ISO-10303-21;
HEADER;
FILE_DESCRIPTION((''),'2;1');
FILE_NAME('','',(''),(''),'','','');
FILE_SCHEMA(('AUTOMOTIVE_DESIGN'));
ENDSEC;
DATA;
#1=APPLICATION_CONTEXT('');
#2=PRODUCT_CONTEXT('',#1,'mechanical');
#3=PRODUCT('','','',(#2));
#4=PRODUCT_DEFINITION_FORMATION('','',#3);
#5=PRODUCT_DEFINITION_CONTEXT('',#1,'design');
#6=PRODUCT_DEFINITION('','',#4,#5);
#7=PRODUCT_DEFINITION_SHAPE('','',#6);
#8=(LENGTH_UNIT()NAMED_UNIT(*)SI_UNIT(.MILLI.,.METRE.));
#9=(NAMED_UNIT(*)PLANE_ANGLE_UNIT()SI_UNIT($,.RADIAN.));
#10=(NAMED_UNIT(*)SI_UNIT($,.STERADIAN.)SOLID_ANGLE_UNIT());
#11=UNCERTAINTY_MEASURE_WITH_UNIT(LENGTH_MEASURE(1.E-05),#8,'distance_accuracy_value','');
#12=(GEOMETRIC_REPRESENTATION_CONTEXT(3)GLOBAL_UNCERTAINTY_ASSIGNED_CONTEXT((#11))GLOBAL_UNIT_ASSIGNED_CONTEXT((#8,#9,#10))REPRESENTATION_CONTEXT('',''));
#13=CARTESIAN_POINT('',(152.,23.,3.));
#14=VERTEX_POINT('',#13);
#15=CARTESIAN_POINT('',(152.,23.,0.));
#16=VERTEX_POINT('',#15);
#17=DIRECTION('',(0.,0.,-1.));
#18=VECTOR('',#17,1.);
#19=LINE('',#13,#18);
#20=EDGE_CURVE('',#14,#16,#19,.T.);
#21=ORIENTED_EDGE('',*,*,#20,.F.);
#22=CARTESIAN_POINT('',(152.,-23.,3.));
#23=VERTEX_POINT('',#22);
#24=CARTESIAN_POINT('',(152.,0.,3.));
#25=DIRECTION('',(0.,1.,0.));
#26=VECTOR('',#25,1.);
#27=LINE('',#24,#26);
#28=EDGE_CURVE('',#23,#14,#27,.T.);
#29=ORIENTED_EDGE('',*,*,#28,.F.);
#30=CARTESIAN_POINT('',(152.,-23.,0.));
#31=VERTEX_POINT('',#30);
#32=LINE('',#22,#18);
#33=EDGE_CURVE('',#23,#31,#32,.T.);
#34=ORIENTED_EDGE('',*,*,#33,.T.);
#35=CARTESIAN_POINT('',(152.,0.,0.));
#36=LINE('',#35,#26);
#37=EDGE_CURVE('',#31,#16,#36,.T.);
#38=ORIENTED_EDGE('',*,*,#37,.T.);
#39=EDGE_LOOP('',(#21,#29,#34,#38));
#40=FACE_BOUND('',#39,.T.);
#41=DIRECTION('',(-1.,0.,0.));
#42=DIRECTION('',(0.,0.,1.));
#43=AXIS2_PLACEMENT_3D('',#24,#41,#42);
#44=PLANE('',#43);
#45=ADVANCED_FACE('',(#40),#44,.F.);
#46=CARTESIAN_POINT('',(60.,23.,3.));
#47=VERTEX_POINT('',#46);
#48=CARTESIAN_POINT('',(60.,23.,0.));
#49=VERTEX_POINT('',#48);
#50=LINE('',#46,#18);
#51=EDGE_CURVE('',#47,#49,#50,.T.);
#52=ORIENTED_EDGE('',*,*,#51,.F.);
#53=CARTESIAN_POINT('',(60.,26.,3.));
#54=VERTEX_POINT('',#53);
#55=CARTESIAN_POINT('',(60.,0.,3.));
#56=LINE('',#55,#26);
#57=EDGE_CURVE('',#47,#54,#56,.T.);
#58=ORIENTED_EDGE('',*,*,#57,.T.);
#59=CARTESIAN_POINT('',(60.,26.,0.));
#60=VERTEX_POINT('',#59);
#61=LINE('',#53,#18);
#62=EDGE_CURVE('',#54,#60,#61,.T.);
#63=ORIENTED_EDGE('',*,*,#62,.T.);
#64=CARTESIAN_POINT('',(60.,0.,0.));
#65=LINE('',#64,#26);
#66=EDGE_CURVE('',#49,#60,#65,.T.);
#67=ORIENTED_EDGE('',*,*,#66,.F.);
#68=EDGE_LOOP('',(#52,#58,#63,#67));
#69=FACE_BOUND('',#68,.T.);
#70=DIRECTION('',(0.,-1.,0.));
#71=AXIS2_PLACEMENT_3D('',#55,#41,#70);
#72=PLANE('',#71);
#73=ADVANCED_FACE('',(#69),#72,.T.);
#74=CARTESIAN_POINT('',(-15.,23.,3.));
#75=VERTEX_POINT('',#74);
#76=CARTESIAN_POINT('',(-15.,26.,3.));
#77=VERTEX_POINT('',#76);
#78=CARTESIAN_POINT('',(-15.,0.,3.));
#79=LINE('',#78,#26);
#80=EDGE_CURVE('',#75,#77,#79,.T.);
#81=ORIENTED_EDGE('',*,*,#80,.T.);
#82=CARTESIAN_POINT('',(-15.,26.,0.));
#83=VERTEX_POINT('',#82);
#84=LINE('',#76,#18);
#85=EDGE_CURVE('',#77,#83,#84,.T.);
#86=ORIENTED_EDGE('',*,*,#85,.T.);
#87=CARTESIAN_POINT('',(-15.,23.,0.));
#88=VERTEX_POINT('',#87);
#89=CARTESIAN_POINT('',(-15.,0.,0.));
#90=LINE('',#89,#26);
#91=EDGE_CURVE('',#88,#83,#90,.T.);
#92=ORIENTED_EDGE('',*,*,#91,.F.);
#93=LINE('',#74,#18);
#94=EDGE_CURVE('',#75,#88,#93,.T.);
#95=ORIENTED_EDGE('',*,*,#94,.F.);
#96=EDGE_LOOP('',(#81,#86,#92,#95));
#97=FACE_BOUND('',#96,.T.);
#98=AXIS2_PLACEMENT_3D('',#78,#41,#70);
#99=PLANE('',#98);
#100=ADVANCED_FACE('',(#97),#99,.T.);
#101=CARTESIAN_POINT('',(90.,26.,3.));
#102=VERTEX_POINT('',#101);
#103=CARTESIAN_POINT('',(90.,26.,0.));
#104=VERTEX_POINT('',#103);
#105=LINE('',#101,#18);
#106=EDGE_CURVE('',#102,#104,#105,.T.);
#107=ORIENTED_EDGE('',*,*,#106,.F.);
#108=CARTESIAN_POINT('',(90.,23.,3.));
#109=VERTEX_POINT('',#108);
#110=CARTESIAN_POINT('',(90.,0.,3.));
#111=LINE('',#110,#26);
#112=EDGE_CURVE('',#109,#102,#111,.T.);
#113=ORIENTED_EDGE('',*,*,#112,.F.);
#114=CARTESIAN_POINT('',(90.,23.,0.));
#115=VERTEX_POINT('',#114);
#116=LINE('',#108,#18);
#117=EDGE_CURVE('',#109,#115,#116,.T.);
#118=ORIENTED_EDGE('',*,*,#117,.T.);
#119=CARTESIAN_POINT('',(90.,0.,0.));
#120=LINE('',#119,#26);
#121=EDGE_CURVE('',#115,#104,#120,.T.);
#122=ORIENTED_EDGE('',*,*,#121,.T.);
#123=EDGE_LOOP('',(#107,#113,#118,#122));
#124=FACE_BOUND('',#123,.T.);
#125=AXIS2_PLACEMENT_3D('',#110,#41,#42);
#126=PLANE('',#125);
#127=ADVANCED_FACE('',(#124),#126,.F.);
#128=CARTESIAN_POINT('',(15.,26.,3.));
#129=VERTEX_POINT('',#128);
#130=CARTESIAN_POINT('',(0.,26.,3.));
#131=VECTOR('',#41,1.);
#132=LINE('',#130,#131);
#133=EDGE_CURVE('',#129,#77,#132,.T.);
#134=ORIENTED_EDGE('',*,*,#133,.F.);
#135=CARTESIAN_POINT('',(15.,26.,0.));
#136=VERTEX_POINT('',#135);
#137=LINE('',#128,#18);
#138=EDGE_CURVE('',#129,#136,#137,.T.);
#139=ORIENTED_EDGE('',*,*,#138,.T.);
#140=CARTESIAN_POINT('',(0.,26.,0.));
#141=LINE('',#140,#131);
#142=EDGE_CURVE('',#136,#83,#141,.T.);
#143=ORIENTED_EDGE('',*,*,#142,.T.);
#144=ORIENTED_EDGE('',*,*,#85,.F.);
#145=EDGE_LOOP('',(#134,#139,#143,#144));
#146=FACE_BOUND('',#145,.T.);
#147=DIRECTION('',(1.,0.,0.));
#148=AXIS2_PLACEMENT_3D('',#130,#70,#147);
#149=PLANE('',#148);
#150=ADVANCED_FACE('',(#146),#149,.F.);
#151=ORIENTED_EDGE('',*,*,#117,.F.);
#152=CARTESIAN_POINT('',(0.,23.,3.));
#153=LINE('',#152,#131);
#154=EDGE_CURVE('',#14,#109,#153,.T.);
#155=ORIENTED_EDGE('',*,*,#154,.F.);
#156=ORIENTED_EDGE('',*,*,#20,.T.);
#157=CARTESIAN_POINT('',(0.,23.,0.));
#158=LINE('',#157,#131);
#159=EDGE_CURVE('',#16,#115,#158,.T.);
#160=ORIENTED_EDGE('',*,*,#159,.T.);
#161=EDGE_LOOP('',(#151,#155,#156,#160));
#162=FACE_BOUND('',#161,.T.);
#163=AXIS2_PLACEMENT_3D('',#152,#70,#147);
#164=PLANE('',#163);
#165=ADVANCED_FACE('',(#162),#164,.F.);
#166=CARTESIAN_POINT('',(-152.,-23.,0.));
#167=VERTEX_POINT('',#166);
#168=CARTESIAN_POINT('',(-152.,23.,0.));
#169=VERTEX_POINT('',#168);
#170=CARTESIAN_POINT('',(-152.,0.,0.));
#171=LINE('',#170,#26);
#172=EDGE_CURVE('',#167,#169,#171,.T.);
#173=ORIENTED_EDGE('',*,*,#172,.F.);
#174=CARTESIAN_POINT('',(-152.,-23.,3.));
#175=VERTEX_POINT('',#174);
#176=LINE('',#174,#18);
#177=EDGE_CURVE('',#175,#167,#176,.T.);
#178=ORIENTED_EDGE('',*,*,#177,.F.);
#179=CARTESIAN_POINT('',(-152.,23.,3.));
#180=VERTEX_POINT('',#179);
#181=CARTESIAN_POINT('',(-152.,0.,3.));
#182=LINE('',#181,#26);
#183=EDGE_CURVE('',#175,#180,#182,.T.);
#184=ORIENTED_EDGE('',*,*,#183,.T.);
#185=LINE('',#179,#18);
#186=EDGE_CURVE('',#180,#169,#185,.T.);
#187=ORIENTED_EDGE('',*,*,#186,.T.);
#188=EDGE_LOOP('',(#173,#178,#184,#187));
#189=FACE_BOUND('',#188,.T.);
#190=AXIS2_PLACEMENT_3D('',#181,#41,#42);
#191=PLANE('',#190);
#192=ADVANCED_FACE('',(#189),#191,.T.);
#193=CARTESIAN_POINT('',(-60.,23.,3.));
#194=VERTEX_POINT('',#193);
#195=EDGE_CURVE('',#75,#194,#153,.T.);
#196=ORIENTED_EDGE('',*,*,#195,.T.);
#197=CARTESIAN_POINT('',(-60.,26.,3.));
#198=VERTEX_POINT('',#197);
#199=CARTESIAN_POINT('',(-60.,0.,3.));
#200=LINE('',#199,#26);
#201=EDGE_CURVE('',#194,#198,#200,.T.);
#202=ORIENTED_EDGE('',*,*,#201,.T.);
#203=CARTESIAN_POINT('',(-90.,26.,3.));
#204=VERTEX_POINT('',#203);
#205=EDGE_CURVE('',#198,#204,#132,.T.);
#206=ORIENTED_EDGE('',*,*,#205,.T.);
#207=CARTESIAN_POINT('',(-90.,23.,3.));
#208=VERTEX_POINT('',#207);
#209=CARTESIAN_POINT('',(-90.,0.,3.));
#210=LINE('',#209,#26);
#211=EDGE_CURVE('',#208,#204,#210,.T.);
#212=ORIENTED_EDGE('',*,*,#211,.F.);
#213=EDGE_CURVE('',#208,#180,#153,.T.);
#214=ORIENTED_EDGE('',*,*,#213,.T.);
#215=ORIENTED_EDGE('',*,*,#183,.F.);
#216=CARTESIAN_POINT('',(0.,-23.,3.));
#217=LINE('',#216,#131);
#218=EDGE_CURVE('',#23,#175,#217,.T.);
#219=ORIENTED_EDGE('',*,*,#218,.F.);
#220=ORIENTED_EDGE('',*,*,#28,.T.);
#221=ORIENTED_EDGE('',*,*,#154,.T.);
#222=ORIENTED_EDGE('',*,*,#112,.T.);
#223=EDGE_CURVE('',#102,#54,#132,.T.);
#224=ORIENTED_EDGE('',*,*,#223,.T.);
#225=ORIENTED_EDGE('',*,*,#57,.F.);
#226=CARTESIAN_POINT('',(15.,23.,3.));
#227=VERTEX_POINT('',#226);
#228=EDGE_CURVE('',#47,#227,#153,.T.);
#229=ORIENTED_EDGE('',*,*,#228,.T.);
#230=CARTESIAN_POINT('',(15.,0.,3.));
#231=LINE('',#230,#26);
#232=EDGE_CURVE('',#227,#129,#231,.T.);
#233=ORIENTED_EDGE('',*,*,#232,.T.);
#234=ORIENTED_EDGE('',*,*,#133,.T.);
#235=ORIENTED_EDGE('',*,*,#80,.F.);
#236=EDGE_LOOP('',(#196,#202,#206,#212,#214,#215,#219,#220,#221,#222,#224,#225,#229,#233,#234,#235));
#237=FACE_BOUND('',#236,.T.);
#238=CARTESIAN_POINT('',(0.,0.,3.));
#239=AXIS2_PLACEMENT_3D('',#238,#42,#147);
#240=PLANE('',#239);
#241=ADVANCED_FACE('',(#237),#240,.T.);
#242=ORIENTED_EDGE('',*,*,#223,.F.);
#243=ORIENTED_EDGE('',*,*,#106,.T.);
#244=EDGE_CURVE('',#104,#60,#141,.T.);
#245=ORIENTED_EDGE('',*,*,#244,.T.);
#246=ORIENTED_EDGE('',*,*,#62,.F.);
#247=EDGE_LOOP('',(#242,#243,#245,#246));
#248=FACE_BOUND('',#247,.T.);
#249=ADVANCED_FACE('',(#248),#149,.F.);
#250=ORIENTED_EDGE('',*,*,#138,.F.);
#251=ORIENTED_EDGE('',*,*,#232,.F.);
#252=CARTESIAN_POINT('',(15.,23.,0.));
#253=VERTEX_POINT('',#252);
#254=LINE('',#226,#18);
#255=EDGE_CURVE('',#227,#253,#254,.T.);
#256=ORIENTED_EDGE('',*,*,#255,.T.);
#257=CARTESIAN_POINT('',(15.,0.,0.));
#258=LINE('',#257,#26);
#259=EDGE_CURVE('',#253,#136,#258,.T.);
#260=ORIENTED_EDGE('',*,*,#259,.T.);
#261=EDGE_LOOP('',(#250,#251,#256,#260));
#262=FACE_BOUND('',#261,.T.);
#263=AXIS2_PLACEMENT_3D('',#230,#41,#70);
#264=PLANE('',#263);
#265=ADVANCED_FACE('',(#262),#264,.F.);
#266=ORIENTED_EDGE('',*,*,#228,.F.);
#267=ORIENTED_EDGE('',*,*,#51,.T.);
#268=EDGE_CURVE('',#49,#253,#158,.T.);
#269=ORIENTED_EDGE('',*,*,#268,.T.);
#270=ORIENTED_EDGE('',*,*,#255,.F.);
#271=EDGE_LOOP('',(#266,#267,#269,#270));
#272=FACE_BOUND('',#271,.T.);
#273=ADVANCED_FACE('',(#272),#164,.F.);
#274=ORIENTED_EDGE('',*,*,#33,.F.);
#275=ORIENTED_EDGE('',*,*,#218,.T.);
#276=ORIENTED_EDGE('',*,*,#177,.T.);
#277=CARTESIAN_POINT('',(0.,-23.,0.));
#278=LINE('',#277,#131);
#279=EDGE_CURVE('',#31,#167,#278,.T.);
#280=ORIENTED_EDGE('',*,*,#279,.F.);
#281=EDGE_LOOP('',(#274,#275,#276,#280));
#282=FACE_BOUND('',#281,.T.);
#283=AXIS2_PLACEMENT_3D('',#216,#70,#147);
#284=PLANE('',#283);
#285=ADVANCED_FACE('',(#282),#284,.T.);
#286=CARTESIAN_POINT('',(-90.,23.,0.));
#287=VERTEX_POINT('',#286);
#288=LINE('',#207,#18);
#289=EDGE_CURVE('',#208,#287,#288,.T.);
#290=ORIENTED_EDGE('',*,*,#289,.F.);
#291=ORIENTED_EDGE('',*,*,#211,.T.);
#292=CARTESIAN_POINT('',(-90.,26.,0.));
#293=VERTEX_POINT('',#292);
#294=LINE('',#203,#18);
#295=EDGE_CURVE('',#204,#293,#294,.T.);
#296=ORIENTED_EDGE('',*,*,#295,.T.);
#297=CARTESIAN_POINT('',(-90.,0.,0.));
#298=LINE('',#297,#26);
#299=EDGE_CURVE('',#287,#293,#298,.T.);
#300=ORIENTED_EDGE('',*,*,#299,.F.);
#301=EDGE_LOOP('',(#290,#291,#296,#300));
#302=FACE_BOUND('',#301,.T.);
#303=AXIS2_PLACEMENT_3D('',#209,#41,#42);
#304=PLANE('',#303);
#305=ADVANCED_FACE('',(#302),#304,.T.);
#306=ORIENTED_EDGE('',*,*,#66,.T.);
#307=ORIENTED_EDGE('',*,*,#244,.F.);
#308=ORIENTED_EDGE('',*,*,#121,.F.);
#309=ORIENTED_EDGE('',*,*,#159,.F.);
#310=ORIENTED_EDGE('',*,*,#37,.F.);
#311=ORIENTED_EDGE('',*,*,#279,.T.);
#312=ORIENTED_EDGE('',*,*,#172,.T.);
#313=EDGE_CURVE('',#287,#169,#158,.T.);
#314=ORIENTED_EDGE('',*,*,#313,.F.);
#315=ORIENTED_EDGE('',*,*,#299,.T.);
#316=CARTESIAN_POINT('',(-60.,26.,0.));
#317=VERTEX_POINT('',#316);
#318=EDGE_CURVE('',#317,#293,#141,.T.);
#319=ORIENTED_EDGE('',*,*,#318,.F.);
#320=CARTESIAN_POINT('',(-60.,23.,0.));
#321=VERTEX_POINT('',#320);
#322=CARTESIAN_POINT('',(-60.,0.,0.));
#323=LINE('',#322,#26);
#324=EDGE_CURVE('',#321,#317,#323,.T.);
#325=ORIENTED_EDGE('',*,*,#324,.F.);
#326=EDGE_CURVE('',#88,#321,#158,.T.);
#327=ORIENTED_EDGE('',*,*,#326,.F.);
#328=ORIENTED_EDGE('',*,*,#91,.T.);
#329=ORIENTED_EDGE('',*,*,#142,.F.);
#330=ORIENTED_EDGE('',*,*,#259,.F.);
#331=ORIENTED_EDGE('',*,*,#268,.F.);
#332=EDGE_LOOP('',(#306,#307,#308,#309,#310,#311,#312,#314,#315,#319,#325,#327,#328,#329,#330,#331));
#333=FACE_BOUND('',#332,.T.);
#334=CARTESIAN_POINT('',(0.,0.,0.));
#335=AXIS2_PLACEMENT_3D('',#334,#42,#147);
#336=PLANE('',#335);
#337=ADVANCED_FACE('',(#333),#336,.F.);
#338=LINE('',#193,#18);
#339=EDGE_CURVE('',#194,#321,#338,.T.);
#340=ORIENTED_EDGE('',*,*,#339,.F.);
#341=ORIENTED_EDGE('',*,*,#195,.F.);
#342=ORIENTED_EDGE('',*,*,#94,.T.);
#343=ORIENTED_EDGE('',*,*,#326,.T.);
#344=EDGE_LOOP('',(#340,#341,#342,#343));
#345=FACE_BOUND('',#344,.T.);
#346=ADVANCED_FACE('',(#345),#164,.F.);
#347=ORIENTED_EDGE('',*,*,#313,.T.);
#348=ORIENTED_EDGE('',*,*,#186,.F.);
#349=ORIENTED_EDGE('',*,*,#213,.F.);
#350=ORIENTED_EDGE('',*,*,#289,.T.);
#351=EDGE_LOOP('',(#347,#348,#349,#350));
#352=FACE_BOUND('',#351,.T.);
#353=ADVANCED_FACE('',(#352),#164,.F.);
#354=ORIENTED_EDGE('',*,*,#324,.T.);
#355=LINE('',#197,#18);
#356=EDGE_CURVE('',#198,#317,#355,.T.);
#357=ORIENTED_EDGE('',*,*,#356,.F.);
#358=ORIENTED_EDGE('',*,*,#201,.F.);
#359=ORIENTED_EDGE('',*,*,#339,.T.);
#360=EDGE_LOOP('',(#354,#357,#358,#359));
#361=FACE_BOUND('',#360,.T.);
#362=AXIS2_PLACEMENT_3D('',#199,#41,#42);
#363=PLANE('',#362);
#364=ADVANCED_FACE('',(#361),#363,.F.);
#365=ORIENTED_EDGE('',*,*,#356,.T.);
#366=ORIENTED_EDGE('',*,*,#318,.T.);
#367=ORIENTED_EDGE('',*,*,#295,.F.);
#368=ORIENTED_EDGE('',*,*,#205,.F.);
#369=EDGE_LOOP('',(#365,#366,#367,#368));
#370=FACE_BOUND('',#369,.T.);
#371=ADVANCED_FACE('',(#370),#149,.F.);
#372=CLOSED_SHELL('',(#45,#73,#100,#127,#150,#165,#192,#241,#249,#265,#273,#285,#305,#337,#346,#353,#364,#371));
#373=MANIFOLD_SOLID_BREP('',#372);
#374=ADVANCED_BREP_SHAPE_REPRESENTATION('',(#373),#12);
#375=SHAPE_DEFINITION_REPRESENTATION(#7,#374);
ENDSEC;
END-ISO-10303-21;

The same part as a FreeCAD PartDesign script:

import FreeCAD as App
import Part
import Sketcher

V = App.Vector
Q = App.Units.Quantity


def add_polygon(sketch, points):
    """Adds a closed chain of lines whose ends are joined by coincident constraints."""
    first, n = sketch.GeometryCount, len(points)
    for a, b in zip(points, points[1:] + points[:1]):
        sketch.addGeometry(Part.LineSegment(App.Vector(*a, 0), App.Vector(*b, 0)), False)
    for i in range(n):
        sketch.addConstraint(Sketcher.Constraint("Coincident", first + i, 2, first + (i + 1) % n, 1))

doc = App.newDocument("Part")
params = doc.addObject("Spreadsheet::Sheet", "Params")
for row, (alias, value) in enumerate([
    ("sketch1_width", "304 mm"),
    ("sketch1_width2", "62 mm"),
    ("sketch1_width3", "30 mm"),
    ("sketch1_height", "46 mm"),
    ("sketch1_height2", "3 mm"),
    ("pad1_length", "3 mm"),
], start=1):
    params.set(f"A{row}", alias)
    params.set(f"B{row}", "=" + value)
    params.setAlias(f"B{row}", alias)

body = doc.addObject("PartDesign::Body", "Body")

# Sketch on XY plane
sketch1 = body.newObject("Sketcher::SketchObject", "Sketch")
sketch1.AttachmentSupport = (doc.getObject("XY_Plane"), [""])
sketch1.MapMode = "FlatFace"
add_polygon(sketch1, [(-152, -23), (152, -23), (152, 23), (90, 23), (90, 26), (60, 26), (60, 23), (15, 23), (15, 26), (-15, 26), (-15, 23), (-60, 23), (-60, 26), (-90, 26), (-90, 23), (-152, 23)])  # lines 0-15
sketch1.addConstraint([
    Sketcher.Constraint("Horizontal", 0),
    Sketcher.Constraint("Vertical", 1),
    Sketcher.Constraint("Horizontal", 2),
    Sketcher.Constraint("Vertical", 3),
    Sketcher.Constraint("Horizontal", 4),
    Sketcher.Constraint("Vertical", 5),
    Sketcher.Constraint("Horizontal", 6),
    Sketcher.Constraint("Vertical", 7),
    Sketcher.Constraint("Horizontal", 8),
    Sketcher.Constraint("Vertical", 9),
    Sketcher.Constraint("Horizontal", 10),
    Sketcher.Constraint("Vertical", 11),
    Sketcher.Constraint("Horizontal", 12),
    Sketcher.Constraint("Vertical", 13),
    Sketcher.Constraint("Horizontal", 14),
    Sketcher.Constraint("Vertical", 15),
    Sketcher.Constraint("Symmetric", 0, 2, 14, 2, -1, 1),
    Sketcher.Constraint("Symmetric", 6, 2, 9, 2, -2),
    Sketcher.Constraint("Symmetric", 4, 2, 11, 2, -2),
    Sketcher.Constraint("Symmetric", 2, 2, 13, 2, -2),
    Sketcher.Constraint("Horizontal", 2, 2, 5, 2),
    Sketcher.Constraint("Horizontal", 4, 2, 7, 2),
    Sketcher.Constraint("Equal", 4, 8),
    Sketcher.Constraint("DistanceX", 0, 1, 0, 2, Q("304 mm")),
    Sketcher.Constraint("DistanceX", 2, 2, 2, 1, Q("62 mm")),
    Sketcher.Constraint("DistanceX", 4, 2, 4, 1, Q("30 mm")),
    Sketcher.Constraint("DistanceY", 1, 1, 1, 2, Q("46 mm")),
    Sketcher.Constraint("DistanceY", 3, 1, 3, 2, Q("3 mm")),
])
sketch1.setExpression("Constraints[39]", "Params.sketch1_width")
sketch1.setExpression("Constraints[40]", "Params.sketch1_width2")
sketch1.setExpression("Constraints[41]", "Params.sketch1_width3")
sketch1.setExpression("Constraints[42]", "Params.sketch1_height")
sketch1.setExpression("Constraints[43]", "Params.sketch1_height2")
pad1 = body.newObject("PartDesign::Pad", "Pad")
pad1.Profile = sketch1
pad1.setExpression("Length", "Params.pad1_length")

doc.recompute()
